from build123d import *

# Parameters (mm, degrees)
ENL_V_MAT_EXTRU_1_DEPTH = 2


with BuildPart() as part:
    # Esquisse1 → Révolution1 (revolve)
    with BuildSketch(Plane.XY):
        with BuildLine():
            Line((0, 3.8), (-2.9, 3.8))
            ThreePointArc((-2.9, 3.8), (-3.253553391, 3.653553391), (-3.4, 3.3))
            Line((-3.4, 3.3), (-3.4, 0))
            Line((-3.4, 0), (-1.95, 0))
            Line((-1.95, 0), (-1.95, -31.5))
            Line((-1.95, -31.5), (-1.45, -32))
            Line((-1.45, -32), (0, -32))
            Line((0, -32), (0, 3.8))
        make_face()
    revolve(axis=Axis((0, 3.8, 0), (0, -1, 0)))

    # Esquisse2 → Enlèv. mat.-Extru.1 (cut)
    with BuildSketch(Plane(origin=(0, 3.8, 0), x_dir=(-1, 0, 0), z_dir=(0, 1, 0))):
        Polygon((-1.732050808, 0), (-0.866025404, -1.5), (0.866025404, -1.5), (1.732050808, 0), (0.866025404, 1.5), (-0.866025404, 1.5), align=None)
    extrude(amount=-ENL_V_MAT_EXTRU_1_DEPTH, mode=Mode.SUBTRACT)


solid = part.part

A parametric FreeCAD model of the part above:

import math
import FreeCAD as App
import Part
import Sketcher
from FreeCAD import Vector
Q = App.Units.Quantity


def add_polygon(sketch, points):
    """Adds a closed chain of lines whose ends are joined by coincident constraints."""
    first, n = sketch.GeometryCount, len(points)
    for a, b in zip(points, points[1:] + points[:1]):
        sketch.addGeometry(Part.LineSegment(App.Vector(*a, 0), App.Vector(*b, 0)), False)
    for i in range(n):
        sketch.addConstraint(Sketcher.Constraint("Coincident", first + i, 2, first + (i + 1) % n, 1))

doc = App.newDocument("Part")
body = doc.addObject("PartDesign::Body", "Body")

# Sketch on XY plane
sketch1 = body.newObject("Sketcher::SketchObject", "Sketch")
sketch1.AttachmentSupport = (doc.getObject("XY_Plane"), [""])
sketch1.MapMode = "FlatFace"
sketch1.addGeometry([
    Part.LineSegment(Vector(0, 3.8, 0), Vector(-2.9, 3.8, 0)),  # 0
    Part.ArcOfCircle(Part.Circle(Vector(-2.9, 3.3, 0), Vector(0, 0, 1), 0.5), math.radians(90), math.radians(180)),  # 1
    Part.LineSegment(Vector(-3.4, 3.3, 0), Vector(-3.4, 0, 0)),  # 2
    Part.LineSegment(Vector(-3.4, 0, 0), Vector(-1.95, 0, 0)),  # 3
    Part.LineSegment(Vector(-1.95, 0, 0), Vector(-1.95, -31.5, 0)),  # 4
    Part.LineSegment(Vector(-1.95, -31.5, 0), Vector(-1.45, -32, 0)),  # 5
    Part.LineSegment(Vector(-1.45, -32, 0), Vector(0, -32, 0)),  # 6
    Part.LineSegment(Vector(0, -32, 0), Vector(0, 3.8, 0)),  # 7
], False)
sketch1.addConstraint([
    Sketcher.Constraint("Tangent", 0, 2, 1, 1),
    Sketcher.Constraint("Tangent", 1, 2, 2, 1),
    Sketcher.Constraint("Coincident", 2, 2, 3, 1),
    Sketcher.Constraint("Coincident", 3, 2, 4, 1),
    Sketcher.Constraint("Coincident", 4, 2, 5, 1),
    Sketcher.Constraint("Coincident", 5, 2, 6, 1),
    Sketcher.Constraint("Coincident", 6, 2, 7, 1),
    Sketcher.Constraint("Coincident", 7, 2, 0, 1),
    Sketcher.Constraint("Horizontal", 0),
    Sketcher.Constraint("Vertical", 2),
    Sketcher.Constraint("Horizontal", 3),
    Sketcher.Constraint("Vertical", 4),
    Sketcher.Constraint("Horizontal", 6),
    Sketcher.Constraint("Vertical", 7),
    Sketcher.Constraint("PointOnObject", 2, 2, -1),
    Sketcher.Constraint("PointOnObject", 6, 2, -2),
    Sketcher.Constraint("Equal", 3, 6),
    Sketcher.Constraint("Radius", 1, Q("0.5 mm")),
    Sketcher.Constraint("Angle", 5, Q("-45 deg")),
    Sketcher.Constraint("DistanceX", 0, 2, 0, 1, Q("2.9 mm")),
    Sketcher.Constraint("DistanceY", 2, 2, 2, 1, Q("3.3 mm")),
    Sketcher.Constraint("DistanceY", 4, 2, 4, 1, Q("31.5 mm")),
    Sketcher.Constraint("DistanceY", 7, 1, 7, 2, Q("35.8 mm")),
])
revolution = body.newObject("PartDesign::Revolution", "Revolution")
revolution.Profile = sketch1
revolution.ReferenceAxis = (sketch1, ["V_Axis"])
revolution.Angle = 360

# Sketch on XZ plane
sketch2 = body.newObject("Sketcher::SketchObject", "Sketch001")
sketch2.AttachmentSupport = (doc.getObject("XZ_Plane"), [""])
sketch2.MapMode = "FlatFace"
sketch2.AttachmentOffset = App.Placement(Vector(0, 0, -3.8), App.Rotation())
add_polygon(sketch2, [(1.732051, 0), (0.866025, -1.5), (-0.866025, -1.5), (-1.732051, 0), (-0.866025, 1.5), (0.866025, 1.5)])  # lines 0-5
sketch2.addConstraint([
    Sketcher.Constraint("Horizontal", 1),
    Sketcher.Constraint("Horizontal", 4),
    Sketcher.Constraint("Symmetric", 0, 2, 3, 2, -1, 1),
    Sketcher.Constraint("Symmetric", 2, 2, 5, 2, -1, 1),
    Sketcher.Constraint("PointOnObject", 2, 2, -1),
    Sketcher.Constraint("Parallel", 2, 5),
    Sketcher.Constraint("Vertical", 1, 2, 3, 2),
    Sketcher.Constraint("Angle", 0, Q("-120 deg")),
    Sketcher.Constraint("DistanceY", 1, 2, 3, 2, Q("3 mm")),
    Sketcher.Constraint("DistanceX", 1, 2, 1, 1, Q("1.732051 mm")),
])
pocket1 = body.newObject("PartDesign::Pocket", "Pocket")
pocket1.Profile = sketch2
pocket1.Length = 2
pocket1.Reversed = True

doc.recompute()
